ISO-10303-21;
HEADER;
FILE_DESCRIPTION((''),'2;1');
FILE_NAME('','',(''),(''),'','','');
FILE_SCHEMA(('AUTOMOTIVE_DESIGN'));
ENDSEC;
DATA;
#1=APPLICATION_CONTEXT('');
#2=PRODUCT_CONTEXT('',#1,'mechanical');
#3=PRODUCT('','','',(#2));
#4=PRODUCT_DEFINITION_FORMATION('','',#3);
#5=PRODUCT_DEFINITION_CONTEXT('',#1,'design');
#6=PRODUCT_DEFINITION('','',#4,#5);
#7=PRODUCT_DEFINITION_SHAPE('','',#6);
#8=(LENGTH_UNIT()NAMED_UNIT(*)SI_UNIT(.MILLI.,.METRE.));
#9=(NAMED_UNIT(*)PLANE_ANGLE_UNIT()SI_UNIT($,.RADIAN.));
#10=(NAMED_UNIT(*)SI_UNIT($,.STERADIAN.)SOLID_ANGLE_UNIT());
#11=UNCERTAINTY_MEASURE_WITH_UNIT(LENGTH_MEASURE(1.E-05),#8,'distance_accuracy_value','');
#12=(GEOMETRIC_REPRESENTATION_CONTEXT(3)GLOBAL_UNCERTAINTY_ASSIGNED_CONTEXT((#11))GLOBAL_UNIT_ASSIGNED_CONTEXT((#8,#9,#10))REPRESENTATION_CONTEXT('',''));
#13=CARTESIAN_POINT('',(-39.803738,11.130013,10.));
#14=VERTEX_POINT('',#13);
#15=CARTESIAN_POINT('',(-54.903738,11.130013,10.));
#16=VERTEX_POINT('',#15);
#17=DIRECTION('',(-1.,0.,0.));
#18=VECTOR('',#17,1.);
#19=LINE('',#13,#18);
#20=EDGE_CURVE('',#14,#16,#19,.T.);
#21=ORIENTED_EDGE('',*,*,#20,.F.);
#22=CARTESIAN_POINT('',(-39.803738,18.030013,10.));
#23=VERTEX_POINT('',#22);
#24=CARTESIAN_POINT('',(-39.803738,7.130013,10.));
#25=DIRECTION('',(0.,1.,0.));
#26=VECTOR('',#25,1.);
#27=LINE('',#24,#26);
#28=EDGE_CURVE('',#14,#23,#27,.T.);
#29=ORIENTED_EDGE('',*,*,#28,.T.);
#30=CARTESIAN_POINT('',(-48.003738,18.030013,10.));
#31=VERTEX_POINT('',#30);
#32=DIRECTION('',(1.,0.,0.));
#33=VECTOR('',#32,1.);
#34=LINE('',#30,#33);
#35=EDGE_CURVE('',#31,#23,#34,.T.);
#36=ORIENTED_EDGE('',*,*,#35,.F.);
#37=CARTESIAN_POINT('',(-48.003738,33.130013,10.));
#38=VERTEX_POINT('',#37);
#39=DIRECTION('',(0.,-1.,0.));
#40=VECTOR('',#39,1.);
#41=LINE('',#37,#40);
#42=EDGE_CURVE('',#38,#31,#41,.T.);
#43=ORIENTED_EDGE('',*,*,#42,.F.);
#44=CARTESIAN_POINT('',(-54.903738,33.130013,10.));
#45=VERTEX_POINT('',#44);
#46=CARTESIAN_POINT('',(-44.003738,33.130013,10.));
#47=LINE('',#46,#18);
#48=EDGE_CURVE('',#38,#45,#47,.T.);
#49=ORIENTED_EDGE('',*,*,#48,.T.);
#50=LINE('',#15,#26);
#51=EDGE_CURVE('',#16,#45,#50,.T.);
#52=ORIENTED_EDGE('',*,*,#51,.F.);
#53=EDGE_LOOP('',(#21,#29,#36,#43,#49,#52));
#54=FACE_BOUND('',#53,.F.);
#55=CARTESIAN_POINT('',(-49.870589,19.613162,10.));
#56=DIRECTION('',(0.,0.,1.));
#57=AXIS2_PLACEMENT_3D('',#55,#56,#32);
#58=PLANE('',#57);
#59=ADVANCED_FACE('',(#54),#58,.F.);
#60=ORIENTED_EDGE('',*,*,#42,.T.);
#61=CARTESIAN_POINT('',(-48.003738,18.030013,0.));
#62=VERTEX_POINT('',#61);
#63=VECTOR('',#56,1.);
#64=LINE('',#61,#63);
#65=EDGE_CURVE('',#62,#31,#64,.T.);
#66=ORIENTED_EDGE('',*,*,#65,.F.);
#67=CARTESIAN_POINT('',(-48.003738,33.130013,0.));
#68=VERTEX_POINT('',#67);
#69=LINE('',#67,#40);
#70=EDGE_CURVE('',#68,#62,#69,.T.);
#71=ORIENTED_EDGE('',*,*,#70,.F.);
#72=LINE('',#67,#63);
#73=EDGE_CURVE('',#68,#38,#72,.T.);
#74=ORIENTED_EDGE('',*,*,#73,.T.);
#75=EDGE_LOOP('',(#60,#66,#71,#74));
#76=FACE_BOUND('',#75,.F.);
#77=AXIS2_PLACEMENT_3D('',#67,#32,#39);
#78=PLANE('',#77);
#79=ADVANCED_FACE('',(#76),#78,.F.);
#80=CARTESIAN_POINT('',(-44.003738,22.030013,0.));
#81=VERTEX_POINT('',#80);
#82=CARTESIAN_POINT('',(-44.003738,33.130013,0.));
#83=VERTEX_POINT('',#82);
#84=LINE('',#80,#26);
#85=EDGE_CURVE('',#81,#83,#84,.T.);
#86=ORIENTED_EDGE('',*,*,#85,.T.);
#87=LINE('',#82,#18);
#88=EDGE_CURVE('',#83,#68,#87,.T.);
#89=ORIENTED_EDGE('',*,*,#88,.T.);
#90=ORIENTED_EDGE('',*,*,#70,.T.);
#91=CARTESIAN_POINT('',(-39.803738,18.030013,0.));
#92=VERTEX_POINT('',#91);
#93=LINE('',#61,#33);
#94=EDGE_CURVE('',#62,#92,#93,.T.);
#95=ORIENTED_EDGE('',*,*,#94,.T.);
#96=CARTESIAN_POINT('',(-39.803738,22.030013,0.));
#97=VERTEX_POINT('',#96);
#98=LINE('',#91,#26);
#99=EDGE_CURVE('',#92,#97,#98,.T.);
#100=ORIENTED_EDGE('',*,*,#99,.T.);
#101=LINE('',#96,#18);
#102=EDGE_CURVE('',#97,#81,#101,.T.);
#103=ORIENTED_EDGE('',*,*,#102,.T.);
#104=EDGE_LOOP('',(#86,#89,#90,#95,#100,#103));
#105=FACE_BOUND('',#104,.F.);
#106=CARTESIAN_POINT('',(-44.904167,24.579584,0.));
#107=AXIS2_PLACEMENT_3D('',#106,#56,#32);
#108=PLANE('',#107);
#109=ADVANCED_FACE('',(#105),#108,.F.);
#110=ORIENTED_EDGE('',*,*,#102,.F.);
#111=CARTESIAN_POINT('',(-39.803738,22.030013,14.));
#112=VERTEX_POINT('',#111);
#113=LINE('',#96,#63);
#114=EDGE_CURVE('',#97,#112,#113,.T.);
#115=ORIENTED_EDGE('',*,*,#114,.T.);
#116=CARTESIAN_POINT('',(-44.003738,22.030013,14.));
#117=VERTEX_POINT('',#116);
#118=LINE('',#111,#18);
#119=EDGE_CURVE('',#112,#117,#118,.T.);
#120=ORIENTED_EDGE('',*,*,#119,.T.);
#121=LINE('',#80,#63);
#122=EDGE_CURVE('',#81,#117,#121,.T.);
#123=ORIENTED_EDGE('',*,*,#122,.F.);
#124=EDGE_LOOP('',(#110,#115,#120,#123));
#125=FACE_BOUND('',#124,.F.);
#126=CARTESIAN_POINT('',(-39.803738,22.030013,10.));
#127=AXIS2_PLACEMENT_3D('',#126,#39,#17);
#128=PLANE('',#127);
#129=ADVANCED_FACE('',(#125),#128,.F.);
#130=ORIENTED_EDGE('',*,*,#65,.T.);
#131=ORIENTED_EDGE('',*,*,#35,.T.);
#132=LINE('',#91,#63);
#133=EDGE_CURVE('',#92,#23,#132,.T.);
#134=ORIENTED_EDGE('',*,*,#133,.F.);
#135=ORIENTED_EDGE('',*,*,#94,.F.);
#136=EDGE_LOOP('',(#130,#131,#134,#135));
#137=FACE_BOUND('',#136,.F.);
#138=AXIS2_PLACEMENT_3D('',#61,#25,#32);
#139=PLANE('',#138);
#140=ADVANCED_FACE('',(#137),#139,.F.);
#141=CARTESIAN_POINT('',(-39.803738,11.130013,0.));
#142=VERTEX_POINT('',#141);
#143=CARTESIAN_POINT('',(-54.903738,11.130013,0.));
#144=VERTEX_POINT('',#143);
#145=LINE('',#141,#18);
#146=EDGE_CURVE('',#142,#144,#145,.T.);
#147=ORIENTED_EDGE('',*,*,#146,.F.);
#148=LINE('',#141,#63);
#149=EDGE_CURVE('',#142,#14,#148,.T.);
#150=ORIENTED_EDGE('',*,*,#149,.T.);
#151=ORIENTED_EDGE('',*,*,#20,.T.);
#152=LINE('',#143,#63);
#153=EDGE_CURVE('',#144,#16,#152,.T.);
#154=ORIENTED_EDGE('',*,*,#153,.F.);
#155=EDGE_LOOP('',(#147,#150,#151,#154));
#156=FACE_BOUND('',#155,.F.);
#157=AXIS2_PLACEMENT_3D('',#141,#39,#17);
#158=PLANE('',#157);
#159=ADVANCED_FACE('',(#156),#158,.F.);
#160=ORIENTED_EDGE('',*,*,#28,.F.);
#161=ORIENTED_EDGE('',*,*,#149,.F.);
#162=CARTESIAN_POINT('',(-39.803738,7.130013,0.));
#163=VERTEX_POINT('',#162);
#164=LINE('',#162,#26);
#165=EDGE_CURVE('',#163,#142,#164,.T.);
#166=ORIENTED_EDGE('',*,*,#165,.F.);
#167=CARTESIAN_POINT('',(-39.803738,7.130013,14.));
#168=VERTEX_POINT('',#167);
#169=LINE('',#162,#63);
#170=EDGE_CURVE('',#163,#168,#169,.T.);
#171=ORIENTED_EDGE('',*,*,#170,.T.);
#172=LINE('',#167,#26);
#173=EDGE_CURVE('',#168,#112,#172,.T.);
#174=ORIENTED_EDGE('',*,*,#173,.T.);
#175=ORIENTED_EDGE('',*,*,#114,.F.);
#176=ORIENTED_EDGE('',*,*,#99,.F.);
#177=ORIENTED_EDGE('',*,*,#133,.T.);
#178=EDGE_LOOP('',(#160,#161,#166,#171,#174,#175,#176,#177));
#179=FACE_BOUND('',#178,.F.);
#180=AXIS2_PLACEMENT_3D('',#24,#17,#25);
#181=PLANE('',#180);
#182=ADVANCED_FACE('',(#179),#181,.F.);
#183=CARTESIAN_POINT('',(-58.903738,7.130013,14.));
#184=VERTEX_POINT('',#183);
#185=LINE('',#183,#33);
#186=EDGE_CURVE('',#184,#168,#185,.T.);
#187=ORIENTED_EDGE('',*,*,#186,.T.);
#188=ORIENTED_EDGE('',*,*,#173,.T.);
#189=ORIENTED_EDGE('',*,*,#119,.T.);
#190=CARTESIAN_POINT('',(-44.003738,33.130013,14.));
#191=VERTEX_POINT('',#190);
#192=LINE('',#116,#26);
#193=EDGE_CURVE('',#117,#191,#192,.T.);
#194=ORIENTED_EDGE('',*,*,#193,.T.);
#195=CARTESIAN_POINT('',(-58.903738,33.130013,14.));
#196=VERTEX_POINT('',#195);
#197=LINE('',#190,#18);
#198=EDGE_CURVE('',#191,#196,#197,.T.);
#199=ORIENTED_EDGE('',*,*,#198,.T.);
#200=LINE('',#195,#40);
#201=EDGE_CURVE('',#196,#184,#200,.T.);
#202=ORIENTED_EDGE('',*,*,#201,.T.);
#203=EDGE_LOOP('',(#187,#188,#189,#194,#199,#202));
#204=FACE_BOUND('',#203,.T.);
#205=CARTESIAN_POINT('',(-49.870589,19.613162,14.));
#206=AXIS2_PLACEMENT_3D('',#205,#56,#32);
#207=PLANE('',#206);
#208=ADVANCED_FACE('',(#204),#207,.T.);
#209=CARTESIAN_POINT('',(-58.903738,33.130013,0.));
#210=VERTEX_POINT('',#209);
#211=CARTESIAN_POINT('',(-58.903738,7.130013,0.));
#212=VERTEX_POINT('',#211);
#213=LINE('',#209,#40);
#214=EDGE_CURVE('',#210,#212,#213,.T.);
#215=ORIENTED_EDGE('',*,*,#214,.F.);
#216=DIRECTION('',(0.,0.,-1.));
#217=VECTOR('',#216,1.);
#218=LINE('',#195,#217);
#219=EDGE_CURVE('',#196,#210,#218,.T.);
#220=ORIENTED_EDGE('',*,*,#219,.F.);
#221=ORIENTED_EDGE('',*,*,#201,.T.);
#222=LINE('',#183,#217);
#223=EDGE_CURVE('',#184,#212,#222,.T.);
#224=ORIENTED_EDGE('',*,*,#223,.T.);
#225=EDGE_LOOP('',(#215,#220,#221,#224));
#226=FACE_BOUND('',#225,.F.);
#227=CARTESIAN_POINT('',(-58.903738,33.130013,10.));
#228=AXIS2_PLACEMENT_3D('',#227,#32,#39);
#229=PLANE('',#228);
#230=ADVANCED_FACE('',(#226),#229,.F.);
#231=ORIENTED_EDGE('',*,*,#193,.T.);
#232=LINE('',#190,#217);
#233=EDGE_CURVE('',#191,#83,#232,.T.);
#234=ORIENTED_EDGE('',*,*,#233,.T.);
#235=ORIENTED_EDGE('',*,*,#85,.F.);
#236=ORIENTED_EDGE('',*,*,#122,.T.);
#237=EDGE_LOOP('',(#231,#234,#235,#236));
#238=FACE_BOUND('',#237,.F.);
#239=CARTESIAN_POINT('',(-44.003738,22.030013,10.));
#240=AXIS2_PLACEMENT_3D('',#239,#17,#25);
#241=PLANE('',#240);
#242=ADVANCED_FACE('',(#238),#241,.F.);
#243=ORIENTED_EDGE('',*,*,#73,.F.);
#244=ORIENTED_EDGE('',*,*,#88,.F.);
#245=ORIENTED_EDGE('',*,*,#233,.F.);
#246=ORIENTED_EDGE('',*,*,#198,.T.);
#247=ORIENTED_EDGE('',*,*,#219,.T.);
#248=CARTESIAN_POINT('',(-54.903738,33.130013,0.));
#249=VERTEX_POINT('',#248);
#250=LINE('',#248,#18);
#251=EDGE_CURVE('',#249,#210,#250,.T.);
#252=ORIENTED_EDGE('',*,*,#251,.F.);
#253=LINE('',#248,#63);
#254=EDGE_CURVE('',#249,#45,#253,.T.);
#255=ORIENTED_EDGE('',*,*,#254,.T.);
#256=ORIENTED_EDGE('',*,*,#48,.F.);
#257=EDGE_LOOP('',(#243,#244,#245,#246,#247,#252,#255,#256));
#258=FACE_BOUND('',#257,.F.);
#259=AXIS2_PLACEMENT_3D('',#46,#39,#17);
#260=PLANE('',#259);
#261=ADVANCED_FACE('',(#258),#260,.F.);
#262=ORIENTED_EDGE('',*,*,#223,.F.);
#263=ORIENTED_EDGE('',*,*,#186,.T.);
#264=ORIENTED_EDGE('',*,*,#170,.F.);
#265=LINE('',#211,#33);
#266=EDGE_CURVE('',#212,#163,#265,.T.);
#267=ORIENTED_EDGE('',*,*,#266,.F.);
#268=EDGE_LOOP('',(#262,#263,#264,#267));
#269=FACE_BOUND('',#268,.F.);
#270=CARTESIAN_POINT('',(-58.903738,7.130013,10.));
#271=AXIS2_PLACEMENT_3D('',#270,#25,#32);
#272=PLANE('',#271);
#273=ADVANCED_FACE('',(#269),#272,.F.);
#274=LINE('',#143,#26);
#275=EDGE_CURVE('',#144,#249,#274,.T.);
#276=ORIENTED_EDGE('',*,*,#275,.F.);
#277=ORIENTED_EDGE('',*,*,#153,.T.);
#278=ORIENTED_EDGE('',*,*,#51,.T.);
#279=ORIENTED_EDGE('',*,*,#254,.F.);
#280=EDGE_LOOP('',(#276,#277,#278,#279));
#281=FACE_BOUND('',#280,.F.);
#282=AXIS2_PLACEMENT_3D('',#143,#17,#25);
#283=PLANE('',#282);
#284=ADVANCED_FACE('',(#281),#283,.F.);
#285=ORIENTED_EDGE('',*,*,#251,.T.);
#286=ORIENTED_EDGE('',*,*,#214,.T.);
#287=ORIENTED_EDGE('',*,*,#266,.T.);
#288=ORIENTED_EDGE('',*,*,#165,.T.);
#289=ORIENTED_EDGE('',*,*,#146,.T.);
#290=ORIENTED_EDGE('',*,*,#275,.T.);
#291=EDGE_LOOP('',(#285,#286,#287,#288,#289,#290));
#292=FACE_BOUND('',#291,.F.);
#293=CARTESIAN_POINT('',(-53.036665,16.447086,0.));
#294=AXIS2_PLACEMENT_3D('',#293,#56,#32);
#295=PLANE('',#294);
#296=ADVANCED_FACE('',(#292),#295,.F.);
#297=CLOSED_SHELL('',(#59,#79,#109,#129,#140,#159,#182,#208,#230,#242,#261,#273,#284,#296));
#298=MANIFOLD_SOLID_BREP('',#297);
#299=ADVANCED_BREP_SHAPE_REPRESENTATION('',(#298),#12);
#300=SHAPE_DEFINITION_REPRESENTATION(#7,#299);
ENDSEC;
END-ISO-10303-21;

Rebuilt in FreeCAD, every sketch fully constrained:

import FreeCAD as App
import Part
import Sketcher
from FreeCAD import Vector


def add_polygon(sketch, points):
    """Adds a closed chain of lines whose ends are joined by coincident constraints."""
    first, n = sketch.GeometryCount, len(points)
    for a, b in zip(points, points[1:] + points[:1]):
        sketch.addGeometry(Part.LineSegment(App.Vector(*a, 0), App.Vector(*b, 0)), False)
    for i in range(n):
        sketch.addConstraint(Sketcher.Constraint("Coincident", first + i, 2, first + (i + 1) % n, 1))

doc = App.newDocument("Part")
body = doc.addObject("PartDesign::Body", "Body")
body.AllowCompound = True

# Sketch on XY plane
sketch1 = body.newObject("Sketcher::SketchObject", "Sketch")
sketch1.AttachmentSupport = (doc.getObject("XY_Plane"), [""])
sketch1.MapMode = "FlatFace"
add_polygon(sketch1, [(-54.9, 11.1), (-54.9, 33.1), (-58.9, 33.1), (-58.9, 7.1), (-39.8, 7.1), (-39.8, 11.1)])  # lines 0-5
add_polygon(sketch1, [(-44, 33.1), (-48, 33.1), (-48, 18), (-39.8, 18), (-39.8, 22), (-44, 22)])  # lines 6-11
sketch1.addConstraint([
    Sketcher.Constraint("Vertical", 0),
    Sketcher.Constraint("Horizontal", 1),
    Sketcher.Constraint("Vertical", 2),
    Sketcher.Constraint("Horizontal", 3),
    Sketcher.Constraint("Vertical", 4),
    Sketcher.Constraint("Horizontal", 5),
    Sketcher.Constraint("Horizontal", 6),
    Sketcher.Constraint("Vertical", 7),
    Sketcher.Constraint("Horizontal", 8),
    Sketcher.Constraint("Vertical", 9),
    Sketcher.Constraint("Horizontal", 10),
    Sketcher.Constraint("Vertical", 11),
    Sketcher.Constraint("Horizontal", 1, 2, 6, 2),
    Sketcher.Constraint("Vertical", 4, 2, 8, 2),
    Sketcher.Constraint("Equal", 1, 6),
    Sketcher.Constraint("Equal", 6, 4),
    Sketcher.Constraint("Equal", 5, 7),
    Sketcher.Constraint("Equal", 4, 9),
    Sketcher.Constraint("DistanceX", 1, 2, 1, 1, 4.0),
    Sketcher.Constraint("DistanceY", 0, 1, 0, 2, 22.0),
    Sketcher.Constraint("DistanceX", 3, 1, 3, 2, 19.1),
    Sketcher.Constraint("DistanceX", 8, 1, 8, 2, 8.2),
    Sketcher.Constraint("DistanceX", 3, 2, -1, 1, 39.803738),
    Sketcher.Constraint("DistanceY", -1, 1, 0, 2, 33.130013),
])
pad1 = body.newObject("PartDesign::Pad", "Pad")
pad1.Profile = sketch1
pad1.Length = 10

# Sketch on XY plane
sketch2 = body.newObject("Sketcher::SketchObject", "Sketch001")
sketch2.AttachmentSupport = (doc.getObject("XY_Plane"), [""])
sketch2.MapMode = "FlatFace"
sketch2.AttachmentOffset = App.Placement(Vector(0, 0, 10), App.Rotation())
add_polygon(sketch2, [(-58.9, 7.1), (-39.8, 7.1), (-39.8, 22), (-44, 22), (-44, 33.1), (-58.9, 33.1)])  # lines 0-5
sketch2.addConstraint([
    Sketcher.Constraint("Horizontal", 0),
    Sketcher.Constraint("Vertical", 1),
    Sketcher.Constraint("Horizontal", 2),
    Sketcher.Constraint("Vertical", 3),
    Sketcher.Constraint("Horizontal", 4),
    Sketcher.Constraint("Vertical", 5),
    Sketcher.Constraint("Equal", 4, 1),
    Sketcher.Constraint("DistanceY", 5, 2, 5, 1, 26.0),
    Sketcher.Constraint("DistanceX", 0, 1, 0, 2, 19.1),
    Sketcher.Constraint("DistanceX", 2, 2, 2, 1, 4.2),
    Sketcher.Constraint("DistanceX", 0, 2, -1, 1, 39.803738),
    Sketcher.Constraint("DistanceY", -1, 1, 0, 2, 7.130013),
])
pad2 = body.newObject("PartDesign::Pad", "Pad001")
pad2.Profile = sketch2
pad2.Length = 4

doc.recompute()
